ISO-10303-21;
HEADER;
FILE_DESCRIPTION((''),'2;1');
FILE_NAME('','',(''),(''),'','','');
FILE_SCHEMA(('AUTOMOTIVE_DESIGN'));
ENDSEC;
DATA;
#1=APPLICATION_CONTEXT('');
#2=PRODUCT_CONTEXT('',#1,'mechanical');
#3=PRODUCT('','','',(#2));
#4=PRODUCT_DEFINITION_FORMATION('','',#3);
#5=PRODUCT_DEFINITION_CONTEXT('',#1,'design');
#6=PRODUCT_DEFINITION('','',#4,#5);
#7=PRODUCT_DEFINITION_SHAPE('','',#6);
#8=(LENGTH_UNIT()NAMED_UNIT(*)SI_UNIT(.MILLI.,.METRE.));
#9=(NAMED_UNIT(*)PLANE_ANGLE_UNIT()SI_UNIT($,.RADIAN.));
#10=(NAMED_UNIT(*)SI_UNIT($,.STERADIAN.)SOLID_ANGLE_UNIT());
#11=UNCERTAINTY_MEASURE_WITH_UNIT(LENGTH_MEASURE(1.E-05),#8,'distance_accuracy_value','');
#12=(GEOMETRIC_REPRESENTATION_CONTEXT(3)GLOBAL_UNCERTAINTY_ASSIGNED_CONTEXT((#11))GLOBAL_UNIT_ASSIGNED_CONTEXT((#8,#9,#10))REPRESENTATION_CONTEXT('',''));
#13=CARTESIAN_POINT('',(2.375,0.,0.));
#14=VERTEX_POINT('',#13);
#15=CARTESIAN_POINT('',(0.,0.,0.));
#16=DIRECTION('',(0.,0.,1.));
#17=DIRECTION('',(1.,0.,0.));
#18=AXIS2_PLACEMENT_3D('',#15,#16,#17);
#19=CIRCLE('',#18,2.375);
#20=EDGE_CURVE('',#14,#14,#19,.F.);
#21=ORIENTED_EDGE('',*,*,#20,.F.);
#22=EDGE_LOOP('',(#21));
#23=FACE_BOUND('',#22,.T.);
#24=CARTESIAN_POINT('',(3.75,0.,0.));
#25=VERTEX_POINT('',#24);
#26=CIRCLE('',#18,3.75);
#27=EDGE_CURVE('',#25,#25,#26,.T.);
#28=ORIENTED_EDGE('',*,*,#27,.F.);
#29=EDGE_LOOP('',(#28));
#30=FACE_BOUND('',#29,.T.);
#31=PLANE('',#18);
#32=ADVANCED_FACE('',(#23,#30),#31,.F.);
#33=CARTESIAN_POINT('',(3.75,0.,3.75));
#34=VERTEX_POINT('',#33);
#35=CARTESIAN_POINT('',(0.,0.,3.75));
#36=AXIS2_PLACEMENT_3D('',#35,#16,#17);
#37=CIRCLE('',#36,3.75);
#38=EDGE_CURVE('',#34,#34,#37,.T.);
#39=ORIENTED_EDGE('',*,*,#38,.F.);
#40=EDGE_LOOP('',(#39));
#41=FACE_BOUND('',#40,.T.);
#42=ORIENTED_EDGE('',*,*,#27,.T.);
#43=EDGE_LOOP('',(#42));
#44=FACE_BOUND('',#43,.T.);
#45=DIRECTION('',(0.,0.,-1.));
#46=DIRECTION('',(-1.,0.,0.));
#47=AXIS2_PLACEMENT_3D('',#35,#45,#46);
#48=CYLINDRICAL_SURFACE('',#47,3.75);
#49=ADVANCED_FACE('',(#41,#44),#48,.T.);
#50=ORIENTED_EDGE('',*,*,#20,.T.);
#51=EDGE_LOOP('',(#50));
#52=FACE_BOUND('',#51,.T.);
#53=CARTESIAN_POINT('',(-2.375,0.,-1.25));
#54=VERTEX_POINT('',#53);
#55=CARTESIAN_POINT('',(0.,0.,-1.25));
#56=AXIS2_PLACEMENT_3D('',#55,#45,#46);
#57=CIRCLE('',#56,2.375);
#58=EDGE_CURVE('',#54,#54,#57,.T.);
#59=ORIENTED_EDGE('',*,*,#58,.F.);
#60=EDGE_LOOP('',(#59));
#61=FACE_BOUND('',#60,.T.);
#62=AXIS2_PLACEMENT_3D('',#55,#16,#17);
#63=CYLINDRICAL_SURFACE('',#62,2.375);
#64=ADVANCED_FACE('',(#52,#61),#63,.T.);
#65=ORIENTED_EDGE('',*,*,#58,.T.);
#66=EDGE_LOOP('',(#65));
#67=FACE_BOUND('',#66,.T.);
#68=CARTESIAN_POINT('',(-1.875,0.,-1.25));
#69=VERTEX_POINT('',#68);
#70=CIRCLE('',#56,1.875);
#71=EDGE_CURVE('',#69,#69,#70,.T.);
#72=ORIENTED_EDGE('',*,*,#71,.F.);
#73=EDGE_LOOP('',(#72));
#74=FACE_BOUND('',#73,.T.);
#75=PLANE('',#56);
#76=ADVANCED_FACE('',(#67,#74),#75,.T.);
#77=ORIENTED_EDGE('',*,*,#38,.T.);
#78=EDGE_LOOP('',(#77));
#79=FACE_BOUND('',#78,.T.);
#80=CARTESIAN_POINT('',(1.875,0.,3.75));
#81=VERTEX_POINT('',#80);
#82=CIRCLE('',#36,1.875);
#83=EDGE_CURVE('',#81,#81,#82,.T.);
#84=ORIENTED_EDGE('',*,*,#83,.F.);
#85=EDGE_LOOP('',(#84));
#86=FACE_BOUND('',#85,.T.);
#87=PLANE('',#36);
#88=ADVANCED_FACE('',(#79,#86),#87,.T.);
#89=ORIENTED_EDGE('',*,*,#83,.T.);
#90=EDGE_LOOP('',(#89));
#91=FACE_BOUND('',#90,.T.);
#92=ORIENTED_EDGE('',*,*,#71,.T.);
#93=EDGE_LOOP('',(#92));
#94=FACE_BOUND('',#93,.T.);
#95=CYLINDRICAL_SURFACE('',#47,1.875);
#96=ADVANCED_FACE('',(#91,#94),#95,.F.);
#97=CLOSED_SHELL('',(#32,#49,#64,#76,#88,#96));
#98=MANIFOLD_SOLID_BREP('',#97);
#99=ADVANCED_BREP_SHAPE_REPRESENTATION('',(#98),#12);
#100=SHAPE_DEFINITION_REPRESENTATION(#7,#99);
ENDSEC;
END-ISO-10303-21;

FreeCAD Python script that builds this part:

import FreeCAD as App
import Part
import Sketcher

V = App.Vector
Q = App.Units.Quantity

doc = App.newDocument("Part")
body = doc.addObject("PartDesign::Body", "Body")

# Sketch on XY plane
sketch1 = doc.addObject("Sketcher::SketchObject", "Sketch")
body.addObject(sketch1)
sketch1.AttachmentSupport = (doc.XY_Plane, [""])
sketch1.MapMode = "FlatFace"
sketch1.addGeometry(Part.Circle(V(0, 0, 0), V(0, 0, 1), 3.8), False)
sketch1.addGeometry(Part.Circle(V(0, 0, 0), V(0, 0, 1), 1.9), False)
sketch1.addConstraint(Sketcher.Constraint("Coincident", 0, 3, -1, 1))
sketch1.addConstraint(Sketcher.Constraint("Coincident", 1, 3, -1, 1))
sketch1.addConstraint(Sketcher.Constraint("Diameter", 0, Q("7.5 mm")))
sketch1.addConstraint(Sketcher.Constraint("Diameter", 1, Q("3.75 mm")))
pad1 = doc.addObject("PartDesign::Pad", "Pad")
body.addObject(pad1)
pad1.Profile = sketch1
pad1.Length = 3.75

# Sketch on XY plane
sketch2 = doc.addObject("Sketcher::SketchObject", "Sketch001")
body.addObject(sketch2)
sketch2.AttachmentSupport = (doc.XY_Plane, [""])
sketch2.MapMode = "FlatFace"
sketch2.addGeometry(Part.Circle(V(0, 0, 0), V(0, 0, 1), 2.4), False)
sketch2.addGeometry(Part.Circle(V(0, 0, 0), V(0, 0, 1), 1.9), False)
sketch2.addConstraint(Sketcher.Constraint("Coincident", 0, 3, -1, 1))
sketch2.addConstraint(Sketcher.Constraint("Coincident", 1, 3, -1, 1))
sketch2.addConstraint(Sketcher.Constraint("Diameter", 0, Q("4.75 mm")))
sketch2.addConstraint(Sketcher.Constraint("Diameter", 1, Q("3.75 mm")))
pad2 = doc.addObject("PartDesign::Pad", "Pad001")
body.addObject(pad2)
pad2.Profile = sketch2
pad2.Length = 1.25
pad2.Reversed = True

doc.recompute()
